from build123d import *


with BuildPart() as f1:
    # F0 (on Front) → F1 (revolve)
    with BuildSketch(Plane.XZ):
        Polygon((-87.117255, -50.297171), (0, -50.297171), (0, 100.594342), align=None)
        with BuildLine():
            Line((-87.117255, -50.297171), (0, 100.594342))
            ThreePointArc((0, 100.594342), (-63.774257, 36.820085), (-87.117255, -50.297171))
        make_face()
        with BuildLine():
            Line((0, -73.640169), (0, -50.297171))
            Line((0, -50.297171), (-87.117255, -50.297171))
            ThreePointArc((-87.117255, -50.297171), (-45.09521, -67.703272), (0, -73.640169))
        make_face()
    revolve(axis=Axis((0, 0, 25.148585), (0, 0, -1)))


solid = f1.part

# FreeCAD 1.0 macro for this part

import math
import FreeCAD as App
import Part
import Sketcher

V = App.Vector
Q = App.Units.Quantity

doc = App.newDocument("Part")
body = doc.addObject("PartDesign::Body", "Body")

# Sketch on XZ plane
sketch1 = doc.addObject("Sketcher::SketchObject", "Sketch")
body.addObject(sketch1)
sketch1.AttachmentSupport = (doc.XZ_Plane, [""])
sketch1.MapMode = "FlatFace"
sketch1.addGeometry(Part.ArcOfCircle(Part.Circle(V(87, -50, 0), V(0, 0, 1), 174), math.radians(120), math.radians(180)), False)
sketch1.addGeometry(Part.ArcOfCircle(Part.Circle(V(0, 101, 0), V(0, 0, 1), 174), math.radians(-120), math.radians(-90)), False)
sketch1.addGeometry(Part.LineSegment(V(0, -74, 0), V(0, 101, 0)), False)
sketch1.addConstraint(Sketcher.Constraint("Coincident", 0, 2, 1, 1))
sketch1.addConstraint(Sketcher.Constraint("Coincident", 1, 2, 2, 1))
sketch1.addConstraint(Sketcher.Constraint("Coincident", 2, 2, 0, 1))
sketch1.addConstraint(Sketcher.Constraint("Vertical", 2))
sketch1.addConstraint(Sketcher.Constraint("Coincident", 2, 2, 1, 3))
sketch1.addConstraint(Sketcher.Constraint("Equal", 0, 1))
sketch1.addConstraint(Sketcher.Constraint("PointOnObject", 1, 3, -2))
sketch1.addConstraint(Sketcher.Constraint("Radius", 0, Q("174.23451 mm")))
sketch1.addConstraint(Sketcher.Constraint("DistanceY", 1, 2, 0, 3, Q("23.342999 mm")))
sketch1.addConstraint(Sketcher.Constraint("DistanceY", 0, 3, -1, 1, Q("50.29717 mm")))
revolution = doc.addObject("PartDesign::Revolution", "Revolution")
body.addObject(revolution)
revolution.Profile = sketch1
revolution.ReferenceAxis = (sketch1, ["V_Axis"])
revolution.Angle = 360

doc.recompute()
